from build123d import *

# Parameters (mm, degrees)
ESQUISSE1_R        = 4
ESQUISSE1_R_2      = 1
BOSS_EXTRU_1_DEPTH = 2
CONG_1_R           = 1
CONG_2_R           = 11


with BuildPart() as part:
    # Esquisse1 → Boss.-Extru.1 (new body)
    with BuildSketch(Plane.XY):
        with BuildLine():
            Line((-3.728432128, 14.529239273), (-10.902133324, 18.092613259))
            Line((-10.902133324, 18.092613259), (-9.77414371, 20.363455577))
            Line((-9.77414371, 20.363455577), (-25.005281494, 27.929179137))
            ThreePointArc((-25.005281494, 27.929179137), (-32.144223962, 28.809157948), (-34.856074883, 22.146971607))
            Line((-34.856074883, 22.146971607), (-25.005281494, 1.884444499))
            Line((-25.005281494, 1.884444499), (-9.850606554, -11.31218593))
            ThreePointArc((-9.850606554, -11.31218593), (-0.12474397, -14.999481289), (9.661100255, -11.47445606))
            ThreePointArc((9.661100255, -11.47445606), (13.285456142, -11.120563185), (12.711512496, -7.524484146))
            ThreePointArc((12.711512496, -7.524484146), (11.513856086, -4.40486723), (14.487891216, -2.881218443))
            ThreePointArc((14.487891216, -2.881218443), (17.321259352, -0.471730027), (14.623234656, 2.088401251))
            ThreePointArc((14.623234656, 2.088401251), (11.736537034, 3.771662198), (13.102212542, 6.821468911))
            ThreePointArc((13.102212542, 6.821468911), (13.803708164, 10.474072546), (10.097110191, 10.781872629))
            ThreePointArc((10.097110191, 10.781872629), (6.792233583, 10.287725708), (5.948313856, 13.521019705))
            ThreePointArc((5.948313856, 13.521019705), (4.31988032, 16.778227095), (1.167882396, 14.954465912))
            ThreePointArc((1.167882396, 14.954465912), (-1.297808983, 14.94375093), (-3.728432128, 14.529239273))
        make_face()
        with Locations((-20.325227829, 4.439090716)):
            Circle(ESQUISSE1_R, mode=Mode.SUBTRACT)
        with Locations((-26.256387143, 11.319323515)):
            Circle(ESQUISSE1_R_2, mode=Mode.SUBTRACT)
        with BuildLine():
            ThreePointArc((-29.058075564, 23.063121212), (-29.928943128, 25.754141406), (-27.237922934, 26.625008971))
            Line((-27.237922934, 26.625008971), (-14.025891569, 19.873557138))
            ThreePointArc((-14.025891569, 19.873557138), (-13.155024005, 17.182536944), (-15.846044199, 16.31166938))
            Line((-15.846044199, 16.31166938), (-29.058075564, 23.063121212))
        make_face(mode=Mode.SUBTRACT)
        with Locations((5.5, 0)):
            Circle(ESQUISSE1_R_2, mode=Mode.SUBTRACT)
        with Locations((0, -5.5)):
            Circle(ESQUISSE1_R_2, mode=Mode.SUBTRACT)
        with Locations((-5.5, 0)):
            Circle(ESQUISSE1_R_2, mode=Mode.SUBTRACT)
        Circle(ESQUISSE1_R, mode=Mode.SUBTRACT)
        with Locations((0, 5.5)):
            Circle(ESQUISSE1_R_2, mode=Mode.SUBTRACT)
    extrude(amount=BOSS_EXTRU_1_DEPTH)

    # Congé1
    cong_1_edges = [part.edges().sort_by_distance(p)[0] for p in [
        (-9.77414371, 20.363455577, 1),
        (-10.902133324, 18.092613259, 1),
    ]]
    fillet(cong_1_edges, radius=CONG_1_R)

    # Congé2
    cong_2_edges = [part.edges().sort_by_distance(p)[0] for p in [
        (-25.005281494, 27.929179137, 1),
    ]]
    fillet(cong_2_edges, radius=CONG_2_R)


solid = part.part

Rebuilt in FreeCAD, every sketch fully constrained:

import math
import FreeCAD as App
import Part
import Sketcher


def edges_at(feature, points):
    """Names of the edges that pass closest to the given points."""
    edges = feature.Shape.Edges
    near = lambda p: min(range(len(edges)), key=lambda i: edges[i].distToShape(Part.Vertex(*p))[0])
    return sorted({f"Edge{near(p) + 1}" for p in points})

doc = App.newDocument("Part")
body = doc.addObject("PartDesign::Body", "Body")

sketch1 = doc.addObject("Sketcher::SketchObject", "Sketch")
body.addObject(sketch1)
sketch1.AttachmentSupport = (doc.XY_Plane, [""])
sketch1.MapMode = "FlatFace"
sketch1.addGeometry([
    Part.LineSegment(App.Vector(-3.7, 14.5, 0), App.Vector(-10.9, 18.1, 0)),
    Part.LineSegment(App.Vector(-10.9, 18.1, 0), App.Vector(-9.8, 20.4, 0)),
    Part.LineSegment(App.Vector(-9.8, 20.4, 0), App.Vector(-25, 27.9, 0)),
    Part.ArcOfCircle(Part.Circle(App.Vector(-29.1, 23.7, 0), App.Vector(0, 0, 1), 5.9), math.radians(46), math.radians(195)),
    Part.LineSegment(App.Vector(-34.9, 22.1, 0), App.Vector(-25, 1.9, 0)),
    Part.LineSegment(App.Vector(-25, 1.9, 0), App.Vector(-9.9, -11.3, 0)),
    Part.ArcOfCircle(Part.Circle(App.Vector(0, 0, 0), App.Vector(0, 0, 1), 15), math.radians(-131), math.radians(-50)),
    Part.ArcOfCircle(Part.Circle(App.Vector(11.3, -9.6, 0), App.Vector(0, 0, 1), 2.5), math.radians(-131), math.radians(56)),
    Part.ArcOfCircle(Part.Circle(App.Vector(13.8, -5.3, 0), App.Vector(0, 0, 1), 2.5), math.radians(75), math.radians(243)),
    Part.ArcOfCircle(Part.Circle(App.Vector(14.8, -0.4, 0), App.Vector(0, 0, 1), 2.5), math.radians(-98), math.radians(95)),
    Part.ArcOfCircle(Part.Circle(App.Vector(14.1, 4.5, 0), App.Vector(0, 0, 1), 2.5), math.radians(114), math.radians(282)),
    Part.ArcOfCircle(Part.Circle(App.Vector(11.8, 9, 0), App.Vector(0, 0, 1), 2.5), math.radians(-59), math.radians(133)),
    Part.ArcOfCircle(Part.Circle(App.Vector(8.2, 12.4, 0), App.Vector(0, 0, 1), 2.5), math.radians(153), math.radians(320)),
    Part.ArcOfCircle(Part.Circle(App.Vector(3.6, 14.4, 0), App.Vector(0, 0, 1), 2.5), math.radians(-20), math.radians(167)),
    Part.ArcOfCircle(Part.Circle(App.Vector(0, 0, 0), App.Vector(0, 0, 1), 15), math.radians(85.53), math.radians(104.39)),
    Part.Circle(App.Vector(-20.3, 4.4, 0), App.Vector(0, 0, 1), 4),
    Part.Circle(App.Vector(-5.5, 0, 0), App.Vector(0, 0, 1), 1),
    Part.Circle(App.Vector(0, -5.5, 0), App.Vector(0, 0, 1), 1),
    Part.Circle(App.Vector(0, 0, 0), App.Vector(0, 0, 1), 4),
    Part.Circle(App.Vector(5.5, 0, 0), App.Vector(0, 0, 1), 1),
    Part.Circle(App.Vector(0, 5.5, 0), App.Vector(0, 0, 1), 1),
    Part.Circle(App.Vector(-26.3, 11.3, 0), App.Vector(0, 0, 1), 1),
    Part.LineSegment(App.Vector(-15.8, 16.3, 0), App.Vector(-29.1, 23.1, 0)),
    Part.ArcOfCircle(Part.Circle(App.Vector(-28.1, 24.8, 0), App.Vector(0, 0, 1), 2), math.radians(63), math.radians(243)),
    Part.LineSegment(App.Vector(-27.2, 26.6, 0), App.Vector(-14, 19.9, 0)),
    Part.ArcOfCircle(Part.Circle(App.Vector(-14.9, 18.1, 0), App.Vector(0, 0, 1), 2), math.radians(-117), math.radians(63)),
], False)
sketch1.addConstraint([
    Sketcher.Constraint("Coincident", 0, 2, 1, 1),
    Sketcher.Constraint("Coincident", 1, 2, 2, 1),
    Sketcher.Constraint("Coincident", 2, 2, 3, 1),
    Sketcher.Constraint("Coincident", 3, 2, 4, 1),
    Sketcher.Constraint("Coincident", 4, 2, 5, 1),
    Sketcher.Constraint("Tangent", 5, 2, 6, 1),
    Sketcher.Constraint("Coincident", 6, 2, 7, 1),
    Sketcher.Constraint("Coincident", 7, 2, 8, 2),
    Sketcher.Constraint("Coincident", 8, 1, 9, 1),
    Sketcher.Constraint("Coincident", 9, 2, 10, 2),
    Sketcher.Constraint("Coincident", 10, 1, 11, 1),
    Sketcher.Constraint("Coincident", 11, 2, 12, 2),
    Sketcher.Constraint("Coincident", 12, 1, 13, 1),
    Sketcher.Constraint("Coincident", 13, 2, 14, 1),
    Sketcher.Constraint("Coincident", 14, 2, 0, 1),
    Sketcher.Constraint("Tangent", 22, 2, 23, 2),
    Sketcher.Constraint("Tangent", 23, 1, 24, 1),
    Sketcher.Constraint("Tangent", 24, 2, 25, 2),
    Sketcher.Constraint("Tangent", 25, 1, 22, 1),
    Sketcher.Constraint("Coincident", 6, 3, -1, 1),
    Sketcher.Constraint("Coincident", 14, 3, -1, 1),
    Sketcher.Constraint("Coincident", 18, 3, -1, 1),
    Sketcher.Constraint("Equal", 7, 8),
    Sketcher.Constraint("Equal", 8, 9),
    Sketcher.Constraint("Equal", 9, 10),
    Sketcher.Constraint("Equal", 10, 11),
    Sketcher.Constraint("Equal", 11, 12),
    Sketcher.Constraint("Equal", 12, 13),
    Sketcher.Constraint("Equal", 6, 14),
    Sketcher.Constraint("Equal", 16, 17),
    Sketcher.Constraint("Equal", 15, 18),
    Sketcher.Constraint("Equal", 17, 19),
    Sketcher.Constraint("Equal", 19, 20),
    Sketcher.Constraint("Equal", 20, 21),
    Sketcher.Constraint("Equal", 23, 25),
    Sketcher.Constraint("Symmetric", 16, 3, 19, 3, -1, 1),
    Sketcher.Constraint("Symmetric", 17, 3, 20, 3, -1, 1),
    Sketcher.Constraint("PointOnObject", 16, 3, -1),
    Sketcher.Constraint("PointOnObject", 17, 3, -2),
    Sketcher.Constraint("Perpendicular", 0, 1),
    Sketcher.Constraint("Perpendicular", 1, 2),
    Sketcher.Constraint("Horizontal", 25, 3, 0, 2),
    Sketcher.Constraint("Vertical", 2, 2, 4, 2),
    Sketcher.Constraint("Diameter", 15, 8.0),
    Sketcher.Constraint("Diameter", 16, 2.0),
    Sketcher.Constraint("Radius", 6, 15.0),
    Sketcher.Constraint("Radius", 23, 2.0),
    Sketcher.Constraint("Radius", 7, 2.5),
    Sketcher.Constraint("DistanceX", 16, 3, -1, 1, 5.5),
    Sketcher.Constraint("DistanceY", 17, 3, -1, 1, 5.5),
    Sketcher.Constraint("Radius", 3, 5.91607),
    Sketcher.Constraint("DistanceX", 23, 3, -1, 1, 28.147999),
    Sketcher.Constraint("DistanceX", 3, 2, 22, 2, 5.797999),
    Sketcher.Constraint("DistanceX", -1, 1, 7, 3, 11.306798),
    Sketcher.Constraint("DistanceX", -1, 1, 6, 2, 9.6611),
    Sketcher.Constraint("DistanceY", -1, 1, 9, 2, 2.088401),
    Sketcher.Constraint("DistanceY", 9, 3, 12, 3, 12.777701),
    Sketcher.Constraint("DistanceY", 6, 2, 8, 3, 6.176301),
    Sketcher.Constraint("DistanceX", 12, 1, 10, 1, 7.153899),
    Sketcher.Constraint("DistanceY", 13, 3, 13, 2, 0.570899),
    Sketcher.Constraint("DistanceX", 0, 2, 14, 2, 7.173701),
    Sketcher.Constraint("DistanceX", 3, 3, 23, 1, 1.911498),
    Sketcher.Constraint("DistanceY", 24, 2, 1, 2, 0.489898),
    Sketcher.Constraint("DistanceX", 25, 1, 1, 2, 6.0719),
    Sketcher.Constraint("Distance", 0, 8.00997),
    Sketcher.Constraint("Distance", 4, 22.530161),
    Sketcher.Constraint("Distance", 22, 14.837111),
    Sketcher.Constraint("DistanceX", 3, 3, -1, 1, 29.149421),
    Sketcher.Constraint("DistanceY", 9, 3, -1, 1, 0.40367),
    Sketcher.Constraint("DistanceY", -1, 1, 10, 3, 4.536539),
    Sketcher.Constraint("DistanceX", -1, 1, 11, 3, 11.812139),
    Sketcher.Constraint("DistanceX", -1, 1, 12, 3, 8.169669),
    Sketcher.Constraint("DistanceY", -1, 1, 15, 3, 4.439091),
    Sketcher.Constraint("DistanceX", 2, 2, -1, 1, 25.005281),
    Sketcher.Constraint("DistanceX", -1, 1, 8, 1, 14.487891),
    Sketcher.Constraint("DistanceY", 8, 1, -1, 1, 2.881218),
    Sketcher.Constraint("DistanceY", -1, 1, 10, 1, 6.821469),
    Sketcher.Constraint("DistanceX", 21, 3, 15, 3, 5.931159),
    Sketcher.Constraint("DistanceY", 21, 3, 23, 3, 13.524742),
    Sketcher.Constraint("DistanceX", 23, 3, 15, 3, 7.822771),
])
pad1 = doc.addObject("PartDesign::Pad", "Pad")
body.addObject(pad1)
pad1.Profile = sketch1
pad1.Length = 2
doc.recompute()

fillet = doc.addObject("PartDesign::Fillet", "Fillet")
body.addObject(fillet)
fillet.Base = (pad1, edges_at(pad1, [(-9.774, 20.363, 1), (-10.902, 18.093, 1)]))
fillet.Radius = 1
doc.recompute()

fillet2 = doc.addObject("PartDesign::Fillet", "Fillet001")
body.addObject(fillet2)
fillet2.Base = (fillet, edges_at(fillet, [(-25.005, 27.929, 1)]))
fillet2.Radius = 11

doc.recompute()
